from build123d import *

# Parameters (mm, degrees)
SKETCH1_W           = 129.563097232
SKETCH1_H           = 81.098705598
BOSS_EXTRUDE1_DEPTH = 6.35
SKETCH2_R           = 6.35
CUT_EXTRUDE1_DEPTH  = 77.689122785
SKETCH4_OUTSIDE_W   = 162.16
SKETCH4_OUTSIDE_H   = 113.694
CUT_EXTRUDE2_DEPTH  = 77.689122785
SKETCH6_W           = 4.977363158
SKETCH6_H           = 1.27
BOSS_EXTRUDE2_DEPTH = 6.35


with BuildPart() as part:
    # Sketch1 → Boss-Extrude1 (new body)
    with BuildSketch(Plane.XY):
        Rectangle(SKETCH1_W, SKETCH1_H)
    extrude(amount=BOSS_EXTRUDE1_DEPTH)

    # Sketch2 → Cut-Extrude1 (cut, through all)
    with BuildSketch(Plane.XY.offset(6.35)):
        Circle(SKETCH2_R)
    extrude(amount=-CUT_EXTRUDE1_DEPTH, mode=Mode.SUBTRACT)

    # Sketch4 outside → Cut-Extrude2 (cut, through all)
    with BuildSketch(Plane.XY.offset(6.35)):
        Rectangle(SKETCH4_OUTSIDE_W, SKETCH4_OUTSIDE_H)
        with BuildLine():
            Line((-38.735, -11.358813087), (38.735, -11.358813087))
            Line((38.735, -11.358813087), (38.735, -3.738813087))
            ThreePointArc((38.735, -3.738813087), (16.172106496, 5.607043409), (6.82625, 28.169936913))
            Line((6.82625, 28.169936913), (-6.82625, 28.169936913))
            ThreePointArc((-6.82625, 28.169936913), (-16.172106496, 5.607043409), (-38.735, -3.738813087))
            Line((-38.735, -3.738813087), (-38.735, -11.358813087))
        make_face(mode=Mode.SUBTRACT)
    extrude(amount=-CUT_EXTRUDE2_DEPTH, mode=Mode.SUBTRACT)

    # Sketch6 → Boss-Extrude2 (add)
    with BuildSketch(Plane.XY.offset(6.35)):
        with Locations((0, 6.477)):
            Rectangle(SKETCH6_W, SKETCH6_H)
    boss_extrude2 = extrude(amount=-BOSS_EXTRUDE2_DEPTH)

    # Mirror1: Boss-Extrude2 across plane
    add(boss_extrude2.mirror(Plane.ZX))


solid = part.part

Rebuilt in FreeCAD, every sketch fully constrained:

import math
import FreeCAD as App
import Part
import Sketcher

V = App.Vector
Q = App.Units.Quantity

doc = App.newDocument("Part")
body = doc.addObject("PartDesign::Body", "Body")

# Sketch on XY plane
sketch1 = doc.addObject("Sketcher::SketchObject", "Sketch")
body.addObject(sketch1)
sketch1.AttachmentSupport = (doc.XY_Plane, [""])
sketch1.MapMode = "FlatFace"
sketch1.addGeometry([
    Part.LineSegment(V(-65, 41, 0), V(-65, -41, 0)),
    Part.LineSegment(V(-65, -41, 0), V(65, -41, 0)),
    Part.LineSegment(V(65, -41, 0), V(65, 41, 0)),
    Part.LineSegment(V(65, 41, 0), V(-65, 41, 0)),
], False)
sketch1.addConstraint([
    Sketcher.Constraint("Coincident", 0, 2, 1, 1),
    Sketcher.Constraint("Coincident", 1, 2, 2, 1),
    Sketcher.Constraint("Coincident", 2, 2, 3, 1),
    Sketcher.Constraint("Coincident", 3, 2, 0, 1),
    Sketcher.Constraint("Vertical", 0),
    Sketcher.Constraint("Horizontal", 1),
    Sketcher.Constraint("Vertical", 2),
    Sketcher.Constraint("Horizontal", 3),
    Sketcher.Constraint("Symmetric", 0, 2, 2, 2, -1, 1),
    Sketcher.Constraint("DistanceX", 1, 1, 1, 2, 129.563097),
    Sketcher.Constraint("DistanceY", 0, 2, 0, 1, 81.098706),
])
pad1 = doc.addObject("PartDesign::Pad", "Pad")
body.addObject(pad1)
pad1.Profile = sketch1
pad1.Length = Q("0.25 in")

# Sketch on XY plane
sketch2 = doc.addObject("Sketcher::SketchObject", "Sketch001")
body.addObject(sketch2)
sketch2.AttachmentSupport = (doc.XY_Plane, [""])
sketch2.MapMode = "FlatFace"
sketch2.AttachmentOffset = App.Placement(V(0, 0, 0.25 * 25.4), App.Rotation())
sketch2.addGeometry(Part.Circle(V(0, 0, 0), V(0, 0, 1), 6), False)
sketch2.addConstraint([
    Sketcher.Constraint("Coincident", 0, 3, -1, 1),
    Sketcher.Constraint("Diameter", 0, Q("0.5 in")),
])
pocket1 = doc.addObject("PartDesign::Pocket", "Pocket")
body.addObject(pocket1)
pocket1.Profile = sketch2
pocket1.Type = "ThroughAll"

# Sketch on XY plane
sketch3 = doc.addObject("Sketcher::SketchObject", "Sketch002")
body.addObject(sketch3)
sketch3.AttachmentSupport = (doc.XY_Plane, [""])
sketch3.MapMode = "FlatFace"
sketch3.AttachmentOffset = App.Placement(V(0, 0, 0.25 * 25.4), App.Rotation())
sketch3.addGeometry([
    Part.LineSegment(V(-81, 57, 0), V(-81, -57, 0)),  # 0
    Part.LineSegment(V(-81, -57, 0), V(81, -57, 0)),  # 1
    Part.LineSegment(V(81, -57, 0), V(81, 57, 0)),  # 2
    Part.LineSegment(V(81, 57, 0), V(-81, 57, 0)),  # 3
    Part.LineSegment(V(39, -11, 0), V(-39, -11, 0)),  # 4
    Part.LineSegment(V(-39, -11, 0), V(-39, -4, 0)),  # 5
    Part.ArcOfCircle(Part.Circle(V(-39, 28, 0), V(0, 0, 1), 32), math.radians(-90), math.radians(0)),  # 6
    Part.LineSegment(V(-7, 28, 0), V(7, 28, 0)),  # 7
    Part.ArcOfCircle(Part.Circle(V(39, 28, 0), V(0, 0, 1), 32), math.radians(-180), math.radians(-90)),  # 8
    Part.LineSegment(V(39, -4, 0), V(39, -11, 0)),  # 9
], False)
sketch3.addConstraint([
    Sketcher.Constraint("Coincident", 0, 2, 1, 1),
    Sketcher.Constraint("Coincident", 1, 2, 2, 1),
    Sketcher.Constraint("Coincident", 2, 2, 3, 1),
    Sketcher.Constraint("Coincident", 3, 2, 0, 1),
    Sketcher.Constraint("Coincident", 4, 2, 5, 1),
    Sketcher.Constraint("Coincident", 5, 2, 6, 1),
    Sketcher.Constraint("Coincident", 6, 2, 7, 1),
    Sketcher.Constraint("Coincident", 7, 2, 8, 1),
    Sketcher.Constraint("Coincident", 8, 2, 9, 1),
    Sketcher.Constraint("Coincident", 9, 2, 4, 1),
    Sketcher.Constraint("Vertical", 0),
    Sketcher.Constraint("Horizontal", 1),
    Sketcher.Constraint("Vertical", 2),
    Sketcher.Constraint("Horizontal", 3),
    Sketcher.Constraint("Horizontal", 4),
    Sketcher.Constraint("Vertical", 5),
    Sketcher.Constraint("Horizontal", 7),
    Sketcher.Constraint("Vertical", 9),
    Sketcher.Constraint("Equal", 6, 8),
    Sketcher.Constraint("Symmetric", 0, 2, 2, 2, -1, 1),
    Sketcher.Constraint("Symmetric", 6, 3, 8, 3, -2),
    Sketcher.Constraint("Horizontal", 8, 3, 6, 2),
    Sketcher.Constraint("Vertical", 6, 3, 4, 2),
    Sketcher.Constraint("DistanceY", 5, 1, 5, 2, Q("0.3 in")),
    Sketcher.Constraint("DistanceX", 4, 2, 4, 1, Q("3.05 in")),
    Sketcher.Constraint("DistanceX", 6, 3, 8, 3, Q("3.05 in")),
    Sketcher.Constraint("DistanceX", 7, 1, 7, 2, Q("0.5375 in")),
    Sketcher.Constraint("DistanceX", 1, 1, 1, 2, 162.16),
    Sketcher.Constraint("DistanceY", 0, 2, 0, 1, 113.694),
    Sketcher.Constraint("DistanceY", -1, 1, 6, 3, 28.169937),
])
pocket2 = doc.addObject("PartDesign::Pocket", "Pocket001")
body.addObject(pocket2)
pocket2.Profile = sketch3
pocket2.Type = "ThroughAll"

# Sketch on XY plane
sketch4 = doc.addObject("Sketcher::SketchObject", "Sketch003")
body.addObject(sketch4)
sketch4.AttachmentSupport = (doc.XY_Plane, [""])
sketch4.MapMode = "FlatFace"
sketch4.AttachmentOffset = App.Placement(V(0, 0, 0.25 * 25.4), App.Rotation())
sketch4.addGeometry([
    Part.LineSegment(V(-2.5, 7.1, 0), V(-2.5, 5.8, 0)),
    Part.LineSegment(V(-2.5, 5.8, 0), V(2.5, 5.8, 0)),
    Part.LineSegment(V(2.5, 5.8, 0), V(2.5, 7.1, 0)),
    Part.LineSegment(V(2.5, 7.1, 0), V(-2.5, 7.1, 0)),
], False)
sketch4.addConstraint([
    Sketcher.Constraint("Coincident", 0, 2, 1, 1),
    Sketcher.Constraint("Coincident", 1, 2, 2, 1),
    Sketcher.Constraint("Coincident", 2, 2, 3, 1),
    Sketcher.Constraint("Coincident", 3, 2, 0, 1),
    Sketcher.Constraint("Vertical", 0),
    Sketcher.Constraint("Horizontal", 1),
    Sketcher.Constraint("Vertical", 2),
    Sketcher.Constraint("Horizontal", 3),
    Sketcher.Constraint("DistanceY", 0, 2, 0, 1, Q("0.05 in")),
    Sketcher.Constraint("DistanceY", -1, 1, 0, 2, Q("0.23 in")),
    Sketcher.Constraint("DistanceX", 1, 1, 1, 2, 4.977363),
    Sketcher.Constraint("DistanceX", 0, 2, -1, 1, 2.488682),
])
pad2 = doc.addObject("PartDesign::Pad", "Pad001")
body.addObject(pad2)
pad2.Profile = sketch4
pad2.Length = Q("0.25 in")
pad2.Reversed = True
doc.recompute()

mirrored = doc.addObject("PartDesign::Mirrored", "Mirrored")
body.addObject(mirrored)
mirrored.Originals = [pad2]
mirrored.MirrorPlane = (doc.XZ_Plane, [""])
body.Tip = mirrored

doc.recompute()
